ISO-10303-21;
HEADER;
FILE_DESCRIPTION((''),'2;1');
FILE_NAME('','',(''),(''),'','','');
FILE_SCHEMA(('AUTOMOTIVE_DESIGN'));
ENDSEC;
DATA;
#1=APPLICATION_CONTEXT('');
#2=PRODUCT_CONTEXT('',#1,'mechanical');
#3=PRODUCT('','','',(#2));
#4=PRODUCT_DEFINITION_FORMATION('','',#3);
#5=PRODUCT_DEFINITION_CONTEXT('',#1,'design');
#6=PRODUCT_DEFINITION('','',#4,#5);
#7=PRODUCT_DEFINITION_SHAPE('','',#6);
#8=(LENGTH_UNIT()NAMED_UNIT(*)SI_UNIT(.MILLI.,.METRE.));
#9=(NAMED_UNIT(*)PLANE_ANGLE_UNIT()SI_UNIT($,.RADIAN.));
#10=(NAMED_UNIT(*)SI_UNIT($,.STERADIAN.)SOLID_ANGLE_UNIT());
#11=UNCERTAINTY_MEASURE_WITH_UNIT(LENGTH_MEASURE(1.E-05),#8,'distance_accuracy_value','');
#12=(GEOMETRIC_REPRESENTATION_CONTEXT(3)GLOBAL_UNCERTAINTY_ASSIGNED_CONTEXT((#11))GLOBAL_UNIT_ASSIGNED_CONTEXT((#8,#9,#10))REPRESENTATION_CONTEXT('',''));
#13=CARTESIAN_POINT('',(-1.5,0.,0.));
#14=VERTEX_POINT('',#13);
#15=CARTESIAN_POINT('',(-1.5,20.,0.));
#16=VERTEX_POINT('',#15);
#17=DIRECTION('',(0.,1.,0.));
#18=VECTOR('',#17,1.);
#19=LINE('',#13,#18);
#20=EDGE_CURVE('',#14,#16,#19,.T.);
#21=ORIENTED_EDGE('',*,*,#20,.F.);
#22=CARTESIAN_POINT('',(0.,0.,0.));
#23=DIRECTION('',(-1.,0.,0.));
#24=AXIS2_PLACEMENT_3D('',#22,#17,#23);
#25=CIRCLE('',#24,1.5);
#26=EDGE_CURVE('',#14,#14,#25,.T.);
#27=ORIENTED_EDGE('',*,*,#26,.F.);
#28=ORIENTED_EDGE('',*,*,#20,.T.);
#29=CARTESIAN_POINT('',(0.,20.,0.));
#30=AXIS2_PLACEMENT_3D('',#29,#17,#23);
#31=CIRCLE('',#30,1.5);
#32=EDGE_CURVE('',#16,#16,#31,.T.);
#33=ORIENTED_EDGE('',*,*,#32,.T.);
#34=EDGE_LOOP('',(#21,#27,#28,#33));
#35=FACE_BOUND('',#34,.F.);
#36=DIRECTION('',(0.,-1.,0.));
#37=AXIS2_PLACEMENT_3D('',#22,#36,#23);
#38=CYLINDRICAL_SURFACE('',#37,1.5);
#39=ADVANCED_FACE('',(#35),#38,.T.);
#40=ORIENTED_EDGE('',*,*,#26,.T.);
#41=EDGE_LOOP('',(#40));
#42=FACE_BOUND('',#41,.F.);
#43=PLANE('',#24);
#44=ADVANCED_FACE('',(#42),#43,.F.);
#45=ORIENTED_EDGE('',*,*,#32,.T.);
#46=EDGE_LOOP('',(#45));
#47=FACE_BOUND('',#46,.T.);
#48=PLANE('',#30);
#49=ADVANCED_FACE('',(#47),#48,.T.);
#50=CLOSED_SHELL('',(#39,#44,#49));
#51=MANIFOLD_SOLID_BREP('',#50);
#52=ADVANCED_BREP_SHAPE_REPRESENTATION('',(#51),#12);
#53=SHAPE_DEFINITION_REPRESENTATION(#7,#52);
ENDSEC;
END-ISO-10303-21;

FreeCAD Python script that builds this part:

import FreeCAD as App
import Part
import Sketcher
Q = App.Units.Quantity

doc = App.newDocument("Part")
body = doc.addObject("PartDesign::Body", "Body")

# Sketch on XZ plane
sketch1 = body.newObject("Sketcher::SketchObject", "Sketch")
sketch1.AttachmentSupport = (doc.getObject("XZ_Plane"), [""])
sketch1.MapMode = "FlatFace"
sketch1.addGeometry(Part.Circle(App.Vector(0, 0, 0), App.Vector(0, 0, 1), 1.5), False)
sketch1.addConstraint([
    Sketcher.Constraint("Coincident", 0, 3, -1, 1),
    Sketcher.Constraint("Diameter", 0, Q("3 mm")),
])
pad1 = body.newObject("PartDesign::Pad", "Pad")
pad1.Profile = sketch1
pad1.Length = 20
pad1.Reversed = True

doc.recompute()
